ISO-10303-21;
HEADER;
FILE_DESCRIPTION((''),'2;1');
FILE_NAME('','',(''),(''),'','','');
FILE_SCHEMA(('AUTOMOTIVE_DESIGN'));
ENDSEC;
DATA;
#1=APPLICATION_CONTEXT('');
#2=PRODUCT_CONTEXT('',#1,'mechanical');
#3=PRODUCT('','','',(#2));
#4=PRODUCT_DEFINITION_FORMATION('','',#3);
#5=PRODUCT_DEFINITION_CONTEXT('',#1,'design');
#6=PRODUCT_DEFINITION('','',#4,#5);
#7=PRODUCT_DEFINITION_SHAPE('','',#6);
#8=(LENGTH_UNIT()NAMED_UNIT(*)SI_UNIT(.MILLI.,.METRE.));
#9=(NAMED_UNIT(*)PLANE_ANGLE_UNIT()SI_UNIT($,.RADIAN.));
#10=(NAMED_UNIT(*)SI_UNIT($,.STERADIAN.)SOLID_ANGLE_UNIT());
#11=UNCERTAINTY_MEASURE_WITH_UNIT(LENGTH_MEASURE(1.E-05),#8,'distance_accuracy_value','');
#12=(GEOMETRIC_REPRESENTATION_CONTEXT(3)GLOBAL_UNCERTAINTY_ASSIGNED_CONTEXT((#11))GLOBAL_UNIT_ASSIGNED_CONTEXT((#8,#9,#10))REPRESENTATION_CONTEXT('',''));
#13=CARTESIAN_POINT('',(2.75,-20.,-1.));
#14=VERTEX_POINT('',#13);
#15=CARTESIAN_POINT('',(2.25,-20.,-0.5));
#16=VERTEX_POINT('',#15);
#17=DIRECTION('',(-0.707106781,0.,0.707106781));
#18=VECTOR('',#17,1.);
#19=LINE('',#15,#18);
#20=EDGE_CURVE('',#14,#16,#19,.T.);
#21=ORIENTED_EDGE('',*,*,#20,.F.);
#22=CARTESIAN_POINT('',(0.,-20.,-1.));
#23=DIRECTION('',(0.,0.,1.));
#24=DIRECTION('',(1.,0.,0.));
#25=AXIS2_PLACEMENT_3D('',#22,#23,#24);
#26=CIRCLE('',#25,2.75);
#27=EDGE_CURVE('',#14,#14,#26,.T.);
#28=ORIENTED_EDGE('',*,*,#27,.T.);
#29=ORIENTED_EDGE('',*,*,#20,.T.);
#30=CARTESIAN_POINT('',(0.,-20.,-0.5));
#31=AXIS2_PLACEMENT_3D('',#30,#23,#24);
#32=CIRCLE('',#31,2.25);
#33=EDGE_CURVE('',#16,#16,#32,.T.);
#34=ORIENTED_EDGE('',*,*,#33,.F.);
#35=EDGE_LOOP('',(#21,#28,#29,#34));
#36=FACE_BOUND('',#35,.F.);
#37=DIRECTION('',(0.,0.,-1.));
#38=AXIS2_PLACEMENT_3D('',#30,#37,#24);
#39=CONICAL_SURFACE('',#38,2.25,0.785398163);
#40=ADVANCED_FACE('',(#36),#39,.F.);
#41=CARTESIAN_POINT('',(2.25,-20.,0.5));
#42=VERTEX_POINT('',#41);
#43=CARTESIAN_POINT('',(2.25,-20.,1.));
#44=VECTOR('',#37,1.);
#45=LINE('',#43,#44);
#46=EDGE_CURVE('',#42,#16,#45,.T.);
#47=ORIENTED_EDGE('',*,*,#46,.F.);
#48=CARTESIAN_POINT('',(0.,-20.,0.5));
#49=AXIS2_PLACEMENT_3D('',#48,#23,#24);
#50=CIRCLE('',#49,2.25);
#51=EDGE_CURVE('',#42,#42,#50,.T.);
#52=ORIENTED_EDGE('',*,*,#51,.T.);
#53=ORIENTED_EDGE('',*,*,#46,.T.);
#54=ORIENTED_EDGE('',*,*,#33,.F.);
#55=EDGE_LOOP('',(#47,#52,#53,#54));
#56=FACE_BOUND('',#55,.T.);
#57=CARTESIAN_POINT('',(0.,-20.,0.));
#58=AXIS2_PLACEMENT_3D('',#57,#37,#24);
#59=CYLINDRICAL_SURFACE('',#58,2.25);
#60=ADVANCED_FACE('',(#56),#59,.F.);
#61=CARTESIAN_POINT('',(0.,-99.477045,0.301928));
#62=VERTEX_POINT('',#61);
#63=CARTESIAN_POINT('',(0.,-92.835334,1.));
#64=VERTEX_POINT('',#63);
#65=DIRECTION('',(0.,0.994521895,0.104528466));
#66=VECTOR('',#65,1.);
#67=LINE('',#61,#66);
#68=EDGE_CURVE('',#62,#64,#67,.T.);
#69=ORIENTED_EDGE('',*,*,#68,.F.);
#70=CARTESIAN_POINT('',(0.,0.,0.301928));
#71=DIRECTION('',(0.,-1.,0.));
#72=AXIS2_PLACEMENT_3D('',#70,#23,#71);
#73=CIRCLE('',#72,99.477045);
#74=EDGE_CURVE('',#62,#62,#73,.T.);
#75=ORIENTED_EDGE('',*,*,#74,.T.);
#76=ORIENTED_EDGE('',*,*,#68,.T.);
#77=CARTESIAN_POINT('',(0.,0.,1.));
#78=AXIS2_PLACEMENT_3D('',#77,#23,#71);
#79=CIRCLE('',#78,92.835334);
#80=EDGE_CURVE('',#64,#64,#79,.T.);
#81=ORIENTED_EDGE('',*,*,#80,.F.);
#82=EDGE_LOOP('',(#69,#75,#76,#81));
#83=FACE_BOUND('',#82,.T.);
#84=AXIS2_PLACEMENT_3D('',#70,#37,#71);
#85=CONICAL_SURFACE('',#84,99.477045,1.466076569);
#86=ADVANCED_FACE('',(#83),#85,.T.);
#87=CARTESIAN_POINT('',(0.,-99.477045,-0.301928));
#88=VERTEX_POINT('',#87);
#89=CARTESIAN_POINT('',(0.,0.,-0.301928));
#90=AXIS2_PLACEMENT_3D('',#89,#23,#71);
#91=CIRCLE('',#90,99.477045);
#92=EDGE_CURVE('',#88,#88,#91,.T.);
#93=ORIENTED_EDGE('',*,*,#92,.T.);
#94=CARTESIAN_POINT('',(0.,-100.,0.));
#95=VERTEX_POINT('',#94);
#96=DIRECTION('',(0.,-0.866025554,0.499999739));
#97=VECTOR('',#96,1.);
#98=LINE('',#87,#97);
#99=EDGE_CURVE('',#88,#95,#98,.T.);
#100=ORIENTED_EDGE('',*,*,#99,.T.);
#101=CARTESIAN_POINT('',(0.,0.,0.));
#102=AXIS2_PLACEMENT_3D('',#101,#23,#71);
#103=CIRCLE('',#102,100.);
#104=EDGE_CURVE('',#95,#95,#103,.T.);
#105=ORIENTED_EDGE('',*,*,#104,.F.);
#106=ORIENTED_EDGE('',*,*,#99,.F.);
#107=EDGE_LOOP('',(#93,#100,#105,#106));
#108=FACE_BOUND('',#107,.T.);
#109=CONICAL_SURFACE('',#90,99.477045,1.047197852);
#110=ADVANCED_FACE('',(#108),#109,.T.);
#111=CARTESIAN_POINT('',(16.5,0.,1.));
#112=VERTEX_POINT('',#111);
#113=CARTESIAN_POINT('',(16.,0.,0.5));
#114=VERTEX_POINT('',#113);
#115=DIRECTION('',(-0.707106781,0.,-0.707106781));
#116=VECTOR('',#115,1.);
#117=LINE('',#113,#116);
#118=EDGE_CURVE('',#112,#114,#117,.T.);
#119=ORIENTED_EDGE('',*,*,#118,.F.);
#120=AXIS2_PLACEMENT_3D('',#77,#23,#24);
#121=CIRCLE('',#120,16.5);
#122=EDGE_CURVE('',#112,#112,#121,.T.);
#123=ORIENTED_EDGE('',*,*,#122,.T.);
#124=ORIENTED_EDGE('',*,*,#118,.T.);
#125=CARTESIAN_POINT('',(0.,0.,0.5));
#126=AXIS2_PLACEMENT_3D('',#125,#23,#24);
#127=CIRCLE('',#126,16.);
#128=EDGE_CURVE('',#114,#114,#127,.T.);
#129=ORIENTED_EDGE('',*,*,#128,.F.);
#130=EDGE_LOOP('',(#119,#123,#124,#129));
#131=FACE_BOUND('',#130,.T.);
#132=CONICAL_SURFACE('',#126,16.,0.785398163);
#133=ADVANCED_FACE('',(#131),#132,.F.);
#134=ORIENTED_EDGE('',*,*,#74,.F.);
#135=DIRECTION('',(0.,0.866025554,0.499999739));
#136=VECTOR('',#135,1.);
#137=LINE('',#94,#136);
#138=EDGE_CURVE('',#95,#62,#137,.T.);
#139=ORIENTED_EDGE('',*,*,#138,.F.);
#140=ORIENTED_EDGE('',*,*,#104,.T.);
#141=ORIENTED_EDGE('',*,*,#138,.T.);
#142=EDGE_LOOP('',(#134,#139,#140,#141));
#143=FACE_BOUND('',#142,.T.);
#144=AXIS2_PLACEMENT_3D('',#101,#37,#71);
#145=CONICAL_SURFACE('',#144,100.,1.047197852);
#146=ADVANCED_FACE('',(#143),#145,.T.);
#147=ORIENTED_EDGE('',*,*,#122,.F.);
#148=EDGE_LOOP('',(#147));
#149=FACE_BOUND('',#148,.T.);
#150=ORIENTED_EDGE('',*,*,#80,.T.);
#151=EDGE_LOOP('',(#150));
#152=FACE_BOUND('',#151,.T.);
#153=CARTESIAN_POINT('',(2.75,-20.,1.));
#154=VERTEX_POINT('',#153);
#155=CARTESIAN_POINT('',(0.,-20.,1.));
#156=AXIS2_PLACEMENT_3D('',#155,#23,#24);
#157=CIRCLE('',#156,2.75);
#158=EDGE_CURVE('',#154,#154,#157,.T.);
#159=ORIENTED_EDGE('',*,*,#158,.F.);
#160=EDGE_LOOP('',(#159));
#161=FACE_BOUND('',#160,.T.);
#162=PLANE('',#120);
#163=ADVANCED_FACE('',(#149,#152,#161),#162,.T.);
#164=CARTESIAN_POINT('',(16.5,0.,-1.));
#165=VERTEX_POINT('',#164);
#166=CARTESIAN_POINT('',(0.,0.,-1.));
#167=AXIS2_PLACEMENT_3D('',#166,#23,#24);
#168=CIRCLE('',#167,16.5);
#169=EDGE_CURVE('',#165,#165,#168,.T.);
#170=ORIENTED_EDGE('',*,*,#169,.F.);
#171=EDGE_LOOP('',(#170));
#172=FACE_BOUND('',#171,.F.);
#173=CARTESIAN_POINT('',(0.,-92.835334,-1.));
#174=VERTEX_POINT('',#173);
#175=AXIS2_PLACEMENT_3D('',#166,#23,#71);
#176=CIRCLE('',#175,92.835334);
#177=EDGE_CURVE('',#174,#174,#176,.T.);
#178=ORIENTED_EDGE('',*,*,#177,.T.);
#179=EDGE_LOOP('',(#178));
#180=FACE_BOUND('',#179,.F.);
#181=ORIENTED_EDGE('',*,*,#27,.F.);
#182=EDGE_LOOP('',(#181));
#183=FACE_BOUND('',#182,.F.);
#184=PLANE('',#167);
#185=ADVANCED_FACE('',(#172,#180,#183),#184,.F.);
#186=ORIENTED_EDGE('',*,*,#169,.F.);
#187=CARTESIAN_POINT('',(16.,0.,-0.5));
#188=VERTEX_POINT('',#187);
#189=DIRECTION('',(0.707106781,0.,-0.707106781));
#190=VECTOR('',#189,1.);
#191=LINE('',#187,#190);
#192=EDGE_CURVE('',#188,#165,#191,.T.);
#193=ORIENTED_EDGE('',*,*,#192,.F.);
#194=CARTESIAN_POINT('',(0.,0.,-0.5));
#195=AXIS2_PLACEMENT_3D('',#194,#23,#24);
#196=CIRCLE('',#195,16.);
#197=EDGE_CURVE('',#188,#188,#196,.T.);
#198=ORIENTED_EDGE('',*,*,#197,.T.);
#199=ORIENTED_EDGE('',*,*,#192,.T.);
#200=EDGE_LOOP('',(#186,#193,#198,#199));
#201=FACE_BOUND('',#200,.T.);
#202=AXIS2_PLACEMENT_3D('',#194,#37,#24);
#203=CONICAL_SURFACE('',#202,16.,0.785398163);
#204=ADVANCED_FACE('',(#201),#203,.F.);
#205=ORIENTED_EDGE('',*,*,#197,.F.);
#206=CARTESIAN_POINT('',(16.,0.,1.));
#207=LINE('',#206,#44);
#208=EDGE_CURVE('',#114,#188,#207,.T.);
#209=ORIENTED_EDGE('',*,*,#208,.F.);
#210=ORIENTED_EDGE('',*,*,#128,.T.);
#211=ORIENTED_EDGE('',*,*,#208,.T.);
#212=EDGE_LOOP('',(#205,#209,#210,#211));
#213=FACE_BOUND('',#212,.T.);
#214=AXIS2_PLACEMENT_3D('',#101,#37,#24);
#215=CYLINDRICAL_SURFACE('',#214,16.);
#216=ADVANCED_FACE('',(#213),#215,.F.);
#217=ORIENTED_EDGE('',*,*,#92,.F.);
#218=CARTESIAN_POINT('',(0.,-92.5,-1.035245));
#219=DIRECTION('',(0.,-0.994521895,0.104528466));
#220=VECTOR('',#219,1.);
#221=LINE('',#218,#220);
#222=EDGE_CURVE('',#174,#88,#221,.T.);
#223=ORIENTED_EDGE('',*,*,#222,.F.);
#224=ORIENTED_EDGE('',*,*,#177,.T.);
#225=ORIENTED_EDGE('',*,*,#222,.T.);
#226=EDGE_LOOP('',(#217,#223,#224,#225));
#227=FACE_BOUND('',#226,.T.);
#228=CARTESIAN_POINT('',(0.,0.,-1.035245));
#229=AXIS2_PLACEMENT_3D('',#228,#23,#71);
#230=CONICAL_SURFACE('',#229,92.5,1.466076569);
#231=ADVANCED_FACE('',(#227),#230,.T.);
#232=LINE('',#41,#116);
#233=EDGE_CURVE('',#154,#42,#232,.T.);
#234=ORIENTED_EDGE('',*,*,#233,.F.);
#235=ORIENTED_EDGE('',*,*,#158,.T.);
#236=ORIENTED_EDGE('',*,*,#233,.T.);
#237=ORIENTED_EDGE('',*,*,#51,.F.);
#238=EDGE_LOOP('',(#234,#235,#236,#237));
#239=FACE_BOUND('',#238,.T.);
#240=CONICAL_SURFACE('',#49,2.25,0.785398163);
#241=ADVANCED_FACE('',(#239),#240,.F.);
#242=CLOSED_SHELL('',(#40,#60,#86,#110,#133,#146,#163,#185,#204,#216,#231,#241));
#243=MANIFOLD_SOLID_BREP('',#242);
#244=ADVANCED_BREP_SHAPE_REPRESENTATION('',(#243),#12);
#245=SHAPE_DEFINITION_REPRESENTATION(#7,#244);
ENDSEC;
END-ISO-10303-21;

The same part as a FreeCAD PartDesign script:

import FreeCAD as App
import Part
import Sketcher
from FreeCAD import Vector
Q = App.Units.Quantity


def edges_at(feature, points):
    """Names of the edges that pass closest to the given points."""
    edges = feature.Shape.Edges
    near = lambda p: min(range(len(edges)), key=lambda i: edges[i].distToShape(Part.Vertex(*p))[0])
    return sorted({f"Edge{near(p) + 1}" for p in points})


def add_polygon(sketch, points):
    """Adds a closed chain of lines whose ends are joined by coincident constraints."""
    first, n = sketch.GeometryCount, len(points)
    for a, b in zip(points, points[1:] + points[:1]):
        sketch.addGeometry(Part.LineSegment(App.Vector(*a, 0), App.Vector(*b, 0)), False)
    for i in range(n):
        sketch.addConstraint(Sketcher.Constraint("Coincident", first + i, 2, first + (i + 1) % n, 1))

doc = App.newDocument("Part")
body = doc.addObject("PartDesign::Body", "Body")

sketch1 = body.newObject("Sketcher::SketchObject", "Sketch")
sketch1.AttachmentSupport = (doc.getObject("XY_Plane"), [""])
sketch1.MapMode = "FlatFace"
sketch1.addGeometry([
    Part.Circle(Vector(0, 0, 0), Vector(0, 0, 1), 100),
    Part.Circle(Vector(0, -20, 0), Vector(0, 0, 1), 2.25),
    Part.Circle(Vector(0, 0, 0), Vector(0, 0, 1), 16),
], False)
sketch1.addConstraint([
    Sketcher.Constraint("Coincident", 0, 3, -1, 1),
    Sketcher.Constraint("Coincident", 2, 3, -1, 1),
    Sketcher.Constraint("PointOnObject", 1, 3, -2),
    Sketcher.Constraint("Diameter", 0, 200.0),
    Sketcher.Constraint("Diameter", 2, 32.0),
    Sketcher.Constraint("Diameter", 1, 4.5),
    Sketcher.Constraint("DistanceY", 1, 3, -1, 1, 20.0),
])
pad1 = body.newObject("PartDesign::Pad", "Pad")
pad1.Profile = sketch1
pad1.Length = 2
pad1.Midplane = True

sketch2 = body.newObject("Sketcher::SketchObject", "Sketch001")
sketch2.AttachmentSupport = (doc.getObject("YZ_Plane"), [""])
sketch2.MapMode = "FlatFace"
add_polygon(sketch2, [(-100, 1.035245), (-100, 0), (-99.477045, 0.301928), (-92.5, 1.035245)])
add_polygon(sketch2, [(-99.477045, -0.301928), (-100, 0), (-100, -1.035245), (-92.5, -1.035245)])
sketch2.addConstraint([
    Sketcher.Constraint("Vertical", 0),
    Sketcher.Constraint("Horizontal", 3),
    Sketcher.Constraint("Vertical", 5),
    Sketcher.Constraint("Horizontal", 6),
    Sketcher.Constraint("Coincident", 4, 2, 0, 2),
    Sketcher.Constraint("Symmetric", 2, 2, 6, 2, -1),
    Sketcher.Constraint("Symmetric", 1, 2, 7, 2, -1),
    Sketcher.Constraint("PointOnObject", 0, 2, -1),
    Sketcher.Constraint("Angle", 1, Q("29.999983 deg")),
    Sketcher.Constraint("Angle", 2, Q("6 deg")),
    Sketcher.Constraint("DistanceX", 3, 2, 3, 1, 7.5),
    Sketcher.Constraint("DistanceX", 0, 2, -1, 1, 100.0),
    Sketcher.Constraint("DistanceY", 0, 2, 0, 1, 1.035245),
])
groove = body.newObject("PartDesign::Groove", "Groove")
groove.Profile = sketch2
groove.ReferenceAxis = (sketch2, ["V_Axis"])
groove.Angle = 360
doc.recompute()

chamfer = body.newObject("PartDesign::Chamfer", "Chamfer")
chamfer.Base = (groove, edges_at(groove, [
    (-16, 0, 1),
    (-16, 0, -1),
    (-2.25, -20, 1),
    (-2.25, -20, -1),
]))
chamfer.Size = 0.5

doc.recompute()
